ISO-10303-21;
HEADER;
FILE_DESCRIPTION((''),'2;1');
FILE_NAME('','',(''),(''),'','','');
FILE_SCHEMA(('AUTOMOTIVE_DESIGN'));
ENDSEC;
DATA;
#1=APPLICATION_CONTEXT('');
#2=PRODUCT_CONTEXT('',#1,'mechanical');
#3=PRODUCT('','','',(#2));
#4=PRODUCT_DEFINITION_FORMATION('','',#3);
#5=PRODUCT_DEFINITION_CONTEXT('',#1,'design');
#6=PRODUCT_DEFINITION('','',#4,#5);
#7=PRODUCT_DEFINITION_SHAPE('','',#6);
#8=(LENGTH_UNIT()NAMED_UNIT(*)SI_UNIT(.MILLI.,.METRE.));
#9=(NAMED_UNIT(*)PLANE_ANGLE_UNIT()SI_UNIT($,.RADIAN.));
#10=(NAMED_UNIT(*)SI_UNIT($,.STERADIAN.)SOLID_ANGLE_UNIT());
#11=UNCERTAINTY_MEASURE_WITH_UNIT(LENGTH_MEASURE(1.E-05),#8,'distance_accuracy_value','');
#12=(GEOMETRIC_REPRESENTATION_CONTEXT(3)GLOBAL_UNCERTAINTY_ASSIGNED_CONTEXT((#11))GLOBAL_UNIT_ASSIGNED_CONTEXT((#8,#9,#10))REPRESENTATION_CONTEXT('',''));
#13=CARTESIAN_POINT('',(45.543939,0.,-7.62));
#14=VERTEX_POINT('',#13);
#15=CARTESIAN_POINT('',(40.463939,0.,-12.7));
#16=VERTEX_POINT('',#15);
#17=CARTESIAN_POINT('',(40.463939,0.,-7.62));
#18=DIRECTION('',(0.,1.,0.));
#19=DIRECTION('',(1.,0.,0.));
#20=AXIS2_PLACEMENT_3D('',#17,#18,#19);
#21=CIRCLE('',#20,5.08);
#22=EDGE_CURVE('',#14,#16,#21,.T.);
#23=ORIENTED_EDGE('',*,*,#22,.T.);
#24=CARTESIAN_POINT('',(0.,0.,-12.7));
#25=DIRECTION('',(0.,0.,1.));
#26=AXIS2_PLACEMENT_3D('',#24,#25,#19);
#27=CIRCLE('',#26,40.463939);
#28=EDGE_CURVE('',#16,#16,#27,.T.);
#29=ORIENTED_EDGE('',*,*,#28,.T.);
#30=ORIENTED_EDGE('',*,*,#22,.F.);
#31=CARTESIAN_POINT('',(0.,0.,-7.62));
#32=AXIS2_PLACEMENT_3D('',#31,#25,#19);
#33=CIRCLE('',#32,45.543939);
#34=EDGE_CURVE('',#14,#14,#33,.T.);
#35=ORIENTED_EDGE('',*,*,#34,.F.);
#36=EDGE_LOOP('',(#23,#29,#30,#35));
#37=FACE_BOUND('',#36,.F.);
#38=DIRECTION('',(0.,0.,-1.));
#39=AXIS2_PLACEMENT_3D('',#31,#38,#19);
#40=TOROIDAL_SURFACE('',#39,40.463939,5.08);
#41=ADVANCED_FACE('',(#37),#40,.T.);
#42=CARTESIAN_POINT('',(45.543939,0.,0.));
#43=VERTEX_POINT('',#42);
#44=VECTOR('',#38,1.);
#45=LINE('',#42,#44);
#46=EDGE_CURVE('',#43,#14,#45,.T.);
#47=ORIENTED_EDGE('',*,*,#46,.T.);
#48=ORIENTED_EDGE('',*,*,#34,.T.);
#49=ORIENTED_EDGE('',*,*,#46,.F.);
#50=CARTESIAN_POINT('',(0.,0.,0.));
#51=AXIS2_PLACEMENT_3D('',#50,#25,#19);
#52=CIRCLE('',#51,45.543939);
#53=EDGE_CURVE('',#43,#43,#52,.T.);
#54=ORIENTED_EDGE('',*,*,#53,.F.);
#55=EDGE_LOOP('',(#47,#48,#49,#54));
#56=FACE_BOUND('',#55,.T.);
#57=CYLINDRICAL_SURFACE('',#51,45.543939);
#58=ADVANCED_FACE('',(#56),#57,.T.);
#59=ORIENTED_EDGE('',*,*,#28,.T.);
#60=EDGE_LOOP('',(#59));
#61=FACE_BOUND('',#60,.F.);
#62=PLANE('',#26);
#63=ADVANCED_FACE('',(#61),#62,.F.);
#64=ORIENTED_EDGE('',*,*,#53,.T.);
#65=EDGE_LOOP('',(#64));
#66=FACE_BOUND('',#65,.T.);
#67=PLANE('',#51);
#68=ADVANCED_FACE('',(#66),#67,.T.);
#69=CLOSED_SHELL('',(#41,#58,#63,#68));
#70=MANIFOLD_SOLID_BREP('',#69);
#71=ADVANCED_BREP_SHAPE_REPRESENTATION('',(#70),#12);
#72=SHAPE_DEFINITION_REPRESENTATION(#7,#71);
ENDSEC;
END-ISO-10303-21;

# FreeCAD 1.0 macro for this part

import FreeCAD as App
import Part
import Sketcher
Q = App.Units.Quantity


def edges_at(feature, points):
    """Names of the edges that pass closest to the given points."""
    edges = feature.Shape.Edges
    near = lambda p: min(range(len(edges)), key=lambda i: edges[i].distToShape(Part.Vertex(*p))[0])
    return sorted({f"Edge{near(p) + 1}" for p in points})

doc = App.newDocument("Part")
body = doc.addObject("PartDesign::Body", "Body")

# Sketch on XY plane
sketch1 = body.newObject("Sketcher::SketchObject", "Sketch")
sketch1.AttachmentSupport = (doc.getObject("XY_Plane"), [""])
sketch1.MapMode = "FlatFace"
sketch1.addGeometry(Part.Circle(App.Vector(0, 0, 0), App.Vector(0, 0, 1), 46), False)
sketch1.addConstraint([
    Sketcher.Constraint("Coincident", 0, 3, -1, 1),
    Sketcher.Constraint("Diameter", 0, 91.087878),
])
pad1 = body.newObject("PartDesign::Pad", "Pad")
pad1.Profile = sketch1
pad1.Length = Q("0.5 in")
pad1.Reversed = True
doc.recompute()

fillet = body.newObject("PartDesign::Fillet", "Fillet")
fillet.Base = (pad1, edges_at(pad1, [(-45.544, 0, -12.7)]))
fillet.Radius = Q("0.2 in")

doc.recompute()
